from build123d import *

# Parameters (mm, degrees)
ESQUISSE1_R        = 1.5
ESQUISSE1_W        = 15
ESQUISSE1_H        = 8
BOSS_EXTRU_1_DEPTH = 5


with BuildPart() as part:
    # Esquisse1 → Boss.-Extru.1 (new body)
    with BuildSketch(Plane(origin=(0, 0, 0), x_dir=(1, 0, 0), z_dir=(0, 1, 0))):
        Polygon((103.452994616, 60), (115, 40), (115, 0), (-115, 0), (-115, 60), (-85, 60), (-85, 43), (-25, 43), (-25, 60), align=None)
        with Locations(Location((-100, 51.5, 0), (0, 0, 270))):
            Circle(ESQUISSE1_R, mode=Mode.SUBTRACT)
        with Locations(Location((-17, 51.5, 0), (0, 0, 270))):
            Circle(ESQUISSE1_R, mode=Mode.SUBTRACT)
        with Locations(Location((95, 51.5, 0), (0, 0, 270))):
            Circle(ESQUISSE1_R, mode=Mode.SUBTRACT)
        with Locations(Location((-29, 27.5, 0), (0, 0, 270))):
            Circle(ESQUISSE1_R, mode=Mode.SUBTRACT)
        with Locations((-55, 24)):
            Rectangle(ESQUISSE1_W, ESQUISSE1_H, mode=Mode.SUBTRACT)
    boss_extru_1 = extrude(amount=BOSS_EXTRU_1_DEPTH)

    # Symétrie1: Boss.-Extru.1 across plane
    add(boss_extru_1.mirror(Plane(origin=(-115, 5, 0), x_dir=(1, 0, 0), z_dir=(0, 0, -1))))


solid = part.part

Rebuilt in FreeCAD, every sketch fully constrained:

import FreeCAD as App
import Part
import Sketcher

V = App.Vector
Q = App.Units.Quantity

doc = App.newDocument("Part")
body = doc.addObject("PartDesign::Body", "Body")

sketch1 = body.newObject("Sketcher::SketchObject", "Sketch")
sketch1.AttachmentSupport = (doc.getObject("XZ_Plane"), [""])
sketch1.MapMode = "FlatFace"
sketch1.addGeometry([
    Part.LineSegment(V(115, -40, 0), V(103.452995, -60, 0)),
    Part.LineSegment(V(103.452995, -60, 0), V(-25, -60, 0)),
    Part.LineSegment(V(-25, -60, 0), V(-25, -43, 0)),
    Part.LineSegment(V(-25, -43, 0), V(-85, -43, 0)),
    Part.LineSegment(V(-85, -43, 0), V(-85, -60, 0)),
    Part.LineSegment(V(-85, -60, 0), V(-115, -60, 0)),
    Part.LineSegment(V(-115, -60, 0), V(-115, 0, 0)),
    Part.LineSegment(V(-115, 0, 0), V(115, 0, 0)),
    Part.LineSegment(V(115, 0, 0), V(115, -40, 0)),
    Part.Circle(V(-29, -27.5, 0), V(0, 0, 1), 1.5),
    Part.LineSegment(V(-62.5, -20, 0), V(-62.5, -28, 0)),
    Part.LineSegment(V(-62.5, -28, 0), V(-47.5, -28, 0)),
    Part.LineSegment(V(-47.5, -28, 0), V(-47.5, -20, 0)),
    Part.LineSegment(V(-47.5, -20, 0), V(-62.5, -20, 0)),
    Part.Circle(V(95, -51.5, 0), V(0, 0, 1), 1.5),
    Part.Circle(V(-17, -51.5, 0), V(0, 0, 1), 1.5),
    Part.Circle(V(-100, -51.5, 0), V(0, 0, 1), 1.5),
], False)
sketch1.addConstraint([
    Sketcher.Constraint("Coincident", 0, 2, 1, 1),
    Sketcher.Constraint("Coincident", 1, 2, 2, 1),
    Sketcher.Constraint("Coincident", 2, 2, 3, 1),
    Sketcher.Constraint("Coincident", 3, 2, 4, 1),
    Sketcher.Constraint("Coincident", 4, 2, 5, 1),
    Sketcher.Constraint("Coincident", 5, 2, 6, 1),
    Sketcher.Constraint("Coincident", 6, 2, 7, 1),
    Sketcher.Constraint("Coincident", 7, 2, 8, 1),
    Sketcher.Constraint("Coincident", 8, 2, 0, 1),
    Sketcher.Constraint("Coincident", 10, 2, 11, 1),
    Sketcher.Constraint("Coincident", 11, 2, 12, 1),
    Sketcher.Constraint("Coincident", 12, 2, 13, 1),
    Sketcher.Constraint("Coincident", 13, 2, 10, 1),
    Sketcher.Constraint("Horizontal", 1),
    Sketcher.Constraint("Vertical", 2),
    Sketcher.Constraint("Horizontal", 3),
    Sketcher.Constraint("Vertical", 4),
    Sketcher.Constraint("Horizontal", 5),
    Sketcher.Constraint("Vertical", 6),
    Sketcher.Constraint("Horizontal", 7),
    Sketcher.Constraint("Vertical", 8),
    Sketcher.Constraint("Vertical", 10),
    Sketcher.Constraint("Horizontal", 11),
    Sketcher.Constraint("Vertical", 12),
    Sketcher.Constraint("Horizontal", 13),
    Sketcher.Constraint("Equal", 9, 14),
    Sketcher.Constraint("Equal", 14, 15),
    Sketcher.Constraint("Equal", 15, 16),
    Sketcher.Constraint("Symmetric", 6, 2, 7, 2, -1, 1),
    Sketcher.Constraint("Horizontal", 14, 3, 15, 3),
    Sketcher.Constraint("Horizontal", 15, 3, 16, 3),
    Sketcher.Constraint("Horizontal", 1, 2, 4, 2),
    Sketcher.Constraint("Equal", 3, 6),
    Sketcher.Constraint("Diameter", 9, Q("3 mm")),
    Sketcher.Constraint("DistanceX", 3, 2, 3, 1, Q("60 mm")),
    Sketcher.Constraint("DistanceX", 5, 2, 5, 1, Q("30 mm")),
    Sketcher.Constraint("DistanceX", 7, 1, 7, 2, Q("230 mm")),
    Sketcher.Constraint("DistanceX", 11, 1, 11, 2, Q("15 mm")),
    Sketcher.Constraint("DistanceY", 2, 1, 2, 2, Q("17 mm")),
    Sketcher.Constraint("DistanceY", 8, 2, 8, 1, Q("40 mm")),
    Sketcher.Constraint("DistanceY", 10, 2, 10, 1, Q("8 mm")),
    Sketcher.Constraint("Angle", 0, Q("-120 deg")),
    Sketcher.Constraint("DistanceX", 9, 3, -1, 1, Q("29 mm")),
    Sketcher.Constraint("DistanceX", -1, 1, 14, 3, Q("95 mm")),
    Sketcher.Constraint("DistanceX", 15, 3, -1, 1, Q("17 mm")),
    Sketcher.Constraint("DistanceX", 16, 3, -1, 1, Q("100 mm")),
    Sketcher.Constraint("DistanceY", 10, 2, -1, 1, Q("28 mm")),
    Sketcher.Constraint("DistanceY", 14, 3, 9, 3, Q("24 mm")),
    Sketcher.Constraint("DistanceY", 9, 3, -1, 1, Q("27.5 mm")),
    Sketcher.Constraint("DistanceX", 10, 2, -1, 1, Q("62.5 mm")),
])
pad1 = body.newObject("PartDesign::Pad", "Pad")
pad1.Profile = sketch1
pad1.Length = 5
pad1.Reversed = True
doc.recompute()

mirrored = body.newObject("PartDesign::Mirrored", "Mirrored")
mirrored.Originals = [pad1]
mirrored.MirrorPlane = (doc.getObject("XY_Plane"), [""])
body.Tip = mirrored

doc.recompute()
